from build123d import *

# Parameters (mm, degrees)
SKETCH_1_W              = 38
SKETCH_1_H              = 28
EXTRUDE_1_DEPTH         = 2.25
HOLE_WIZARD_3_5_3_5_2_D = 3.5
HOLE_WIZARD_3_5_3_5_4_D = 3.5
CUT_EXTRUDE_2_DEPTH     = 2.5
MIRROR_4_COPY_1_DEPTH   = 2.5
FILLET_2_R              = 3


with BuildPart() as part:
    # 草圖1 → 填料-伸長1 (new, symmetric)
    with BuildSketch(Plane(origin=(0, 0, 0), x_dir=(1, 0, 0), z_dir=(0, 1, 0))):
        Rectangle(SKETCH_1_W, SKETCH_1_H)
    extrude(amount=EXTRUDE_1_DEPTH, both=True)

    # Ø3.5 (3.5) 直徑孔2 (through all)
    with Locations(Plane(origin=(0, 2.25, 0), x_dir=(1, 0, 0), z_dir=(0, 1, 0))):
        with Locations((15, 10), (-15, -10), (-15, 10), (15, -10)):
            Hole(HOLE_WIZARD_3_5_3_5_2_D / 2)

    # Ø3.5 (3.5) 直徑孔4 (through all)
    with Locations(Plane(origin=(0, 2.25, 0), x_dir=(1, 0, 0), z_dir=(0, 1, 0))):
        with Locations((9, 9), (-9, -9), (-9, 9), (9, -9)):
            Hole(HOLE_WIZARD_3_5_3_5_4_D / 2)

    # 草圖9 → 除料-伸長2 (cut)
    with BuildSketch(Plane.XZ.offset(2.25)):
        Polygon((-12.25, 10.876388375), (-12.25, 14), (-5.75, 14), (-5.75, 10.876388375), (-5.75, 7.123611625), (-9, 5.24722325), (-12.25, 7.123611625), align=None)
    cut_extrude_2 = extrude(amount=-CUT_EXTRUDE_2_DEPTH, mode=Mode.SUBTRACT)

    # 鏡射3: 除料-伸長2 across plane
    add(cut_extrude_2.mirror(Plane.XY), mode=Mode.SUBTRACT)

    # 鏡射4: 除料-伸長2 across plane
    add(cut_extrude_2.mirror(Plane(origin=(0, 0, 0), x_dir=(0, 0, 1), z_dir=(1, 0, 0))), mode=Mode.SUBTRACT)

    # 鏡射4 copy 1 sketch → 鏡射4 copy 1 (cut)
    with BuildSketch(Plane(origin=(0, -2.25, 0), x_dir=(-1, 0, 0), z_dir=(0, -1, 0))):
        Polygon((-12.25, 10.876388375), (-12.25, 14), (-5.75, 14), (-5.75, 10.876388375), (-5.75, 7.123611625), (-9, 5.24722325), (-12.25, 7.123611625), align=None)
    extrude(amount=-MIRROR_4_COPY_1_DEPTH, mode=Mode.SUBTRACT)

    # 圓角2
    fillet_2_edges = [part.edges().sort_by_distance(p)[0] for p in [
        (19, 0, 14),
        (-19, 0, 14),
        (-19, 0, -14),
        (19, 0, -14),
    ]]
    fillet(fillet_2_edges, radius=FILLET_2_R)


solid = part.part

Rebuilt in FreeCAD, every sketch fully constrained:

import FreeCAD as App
import Part
import Sketcher

V = App.Vector
Q = App.Units.Quantity


def edges_at(feature, points):
    """Names of the edges that pass closest to the given points."""
    edges = feature.Shape.Edges
    near = lambda p: min(range(len(edges)), key=lambda i: edges[i].distToShape(Part.Vertex(*p))[0])
    return sorted({f"Edge{near(p) + 1}" for p in points})


def add_polygon(sketch, points):
    """Adds a closed chain of lines whose ends are joined by coincident constraints."""
    first, n = sketch.GeometryCount, len(points)
    for a, b in zip(points, points[1:] + points[:1]):
        sketch.addGeometry(Part.LineSegment(App.Vector(*a, 0), App.Vector(*b, 0)), False)
    for i in range(n):
        sketch.addConstraint(Sketcher.Constraint("Coincident", first + i, 2, first + (i + 1) % n, 1))

doc = App.newDocument("Part")
body = doc.addObject("PartDesign::Body", "Body")

# Sketch on XZ plane
sketch1 = doc.addObject("Sketcher::SketchObject", "Sketch")
body.addObject(sketch1)
sketch1.AttachmentSupport = (doc.XZ_Plane, [""])
sketch1.MapMode = "FlatFace"
add_polygon(sketch1, [(-19, -14), (-19, 14), (19, 14), (19, -14)])  # lines 0-3
sketch1.addConstraint(Sketcher.Constraint("Vertical", 0))
sketch1.addConstraint(Sketcher.Constraint("Horizontal", 1))
sketch1.addConstraint(Sketcher.Constraint("Vertical", 2))
sketch1.addConstraint(Sketcher.Constraint("Horizontal", 3))
sketch1.addConstraint(Sketcher.Constraint("Symmetric", 0, 2, 2, 2, -1, 1))
sketch1.addConstraint(Sketcher.Constraint("DistanceX", 1, 1, 1, 2, Q("38 mm")))
sketch1.addConstraint(Sketcher.Constraint("DistanceY", 0, 1, 0, 2, Q("28 mm")))
pad1 = doc.addObject("PartDesign::Pad", "Pad")
body.addObject(pad1)
pad1.Profile = sketch1
pad1.Length = 4.5
pad1.Midplane = True

# Sketch on XZ plane
sketch2 = doc.addObject("Sketcher::SketchObject", "Sketch001")
body.addObject(sketch2)
sketch2.AttachmentSupport = (doc.XZ_Plane, [""])
sketch2.MapMode = "FlatFace"
sketch2.AttachmentOffset = App.Placement(V(0, 0, -2.25), App.Rotation())
sketch2.addGeometry(Part.Circle(V(15, -10, 0), V(0, 0, 1), 1.8), False)
sketch2.addGeometry(Part.Circle(V(-15, 10, 0), V(0, 0, 1), 1.8), False)
sketch2.addGeometry(Part.Circle(V(-15, -10, 0), V(0, 0, 1), 1.8), False)
sketch2.addGeometry(Part.Circle(V(15, 10, 0), V(0, 0, 1), 1.8), False)
sketch2.addConstraint(Sketcher.Constraint("Equal", 0, 1))
sketch2.addConstraint(Sketcher.Constraint("Equal", 1, 2))
sketch2.addConstraint(Sketcher.Constraint("Equal", 2, 3))
sketch2.addConstraint(Sketcher.Constraint("Symmetric", 0, 3, 1, 3, -1, 1))
sketch2.addConstraint(Sketcher.Constraint("Symmetric", 2, 3, 3, 3, -1, 1))
sketch2.addConstraint(Sketcher.Constraint("Symmetric", 0, 3, 2, 3, -2))
sketch2.addConstraint(Sketcher.Constraint("Diameter", 0, Q("3.5 mm")))
sketch2.addConstraint(Sketcher.Constraint("DistanceX", -1, 1, 0, 3, Q("15 mm")))
sketch2.addConstraint(Sketcher.Constraint("DistanceY", 0, 3, -1, 1, Q("10 mm")))
doc.recompute()
hole = doc.addObject("PartDesign::Hole", "Hole")
body.addObject(hole)
hole.Profile = sketch2
hole.ThreadType = "None"
hole.Diameter = 3.5
hole.DepthType = "ThroughAll"
hole.Reversed = True

# Sketch on XZ plane
sketch3 = doc.addObject("Sketcher::SketchObject", "Sketch002")
body.addObject(sketch3)
sketch3.AttachmentSupport = (doc.XZ_Plane, [""])
sketch3.MapMode = "FlatFace"
sketch3.AttachmentOffset = App.Placement(V(0, 0, -2.25), App.Rotation())
sketch3.addGeometry(Part.Circle(V(9, -9, 0), V(0, 0, 1), 1.8), False)
sketch3.addGeometry(Part.Circle(V(-9, 9, 0), V(0, 0, 1), 1.8), False)
sketch3.addGeometry(Part.Circle(V(-9, -9, 0), V(0, 0, 1), 1.8), False)
sketch3.addGeometry(Part.Circle(V(9, 9, 0), V(0, 0, 1), 1.8), False)
sketch3.addConstraint(Sketcher.Constraint("Equal", 0, 1))
sketch3.addConstraint(Sketcher.Constraint("Equal", 1, 2))
sketch3.addConstraint(Sketcher.Constraint("Equal", 2, 3))
sketch3.addConstraint(Sketcher.Constraint("Symmetric", 0, 3, 1, 3, -1, 1))
sketch3.addConstraint(Sketcher.Constraint("Symmetric", 2, 3, 3, 3, -1, 1))
sketch3.addConstraint(Sketcher.Constraint("Symmetric", 0, 3, 2, 3, -2))
sketch3.addConstraint(Sketcher.Constraint("Diameter", 0, Q("3.5 mm")))
sketch3.addConstraint(Sketcher.Constraint("DistanceX", -1, 1, 0, 3, Q("9 mm")))
sketch3.addConstraint(Sketcher.Constraint("DistanceY", 0, 3, -1, 1, Q("9 mm")))
doc.recompute()
hole2 = doc.addObject("PartDesign::Hole", "Hole001")
body.addObject(hole2)
hole2.Profile = sketch3
hole2.ThreadType = "None"
hole2.Diameter = 3.5
hole2.DepthType = "ThroughAll"
hole2.Reversed = True

# Sketch on XZ plane
sketch4 = doc.addObject("Sketcher::SketchObject", "Sketch003")
body.addObject(sketch4)
sketch4.AttachmentSupport = (doc.XZ_Plane, [""])
sketch4.MapMode = "FlatFace"
sketch4.AttachmentOffset = App.Placement(V(0, 0, 2.25), App.Rotation())
add_polygon(sketch4, [(-12.2, 14), (-12.2, 7.1), (-9, 5.2), (-5.8, 7.1), (-5.8, 14)])  # lines 0-4
sketch4.addConstraint(Sketcher.Constraint("Vertical", 0))
sketch4.addConstraint(Sketcher.Constraint("Vertical", 3))
sketch4.addConstraint(Sketcher.Constraint("Horizontal", 4))
sketch4.addConstraint(Sketcher.Constraint("Horizontal", 0, 2, 2, 2))
sketch4.addConstraint(Sketcher.Constraint("Equal", 1, 2))
sketch4.addConstraint(Sketcher.Constraint("Angle", 1, Q("-30 deg")))
sketch4.addConstraint(Sketcher.Constraint("DistanceX", 4, 2, 4, 1, Q("6.5 mm")))
sketch4.addConstraint(Sketcher.Constraint("DistanceX", 1, 2, -1, 1, Q("9 mm")))
sketch4.addConstraint(Sketcher.Constraint("DistanceY", -1, 1, 3, 2, Q("14 mm")))
sketch4.addConstraint(Sketcher.Constraint("DistanceY", 0, 2, 0, 1, Q("6.876388 mm")))
pocket1 = doc.addObject("PartDesign::Pocket", "Pocket")
body.addObject(pocket1)
pocket1.Profile = sketch4
pocket1.Length = 2.5
doc.recompute()

mirrored = doc.addObject("PartDesign::Mirrored", "Mirrored")
body.addObject(mirrored)
mirrored.Originals = [pocket1]
mirrored.MirrorPlane = (doc.XY_Plane, [""])
body.Tip = mirrored
doc.recompute()

mirrored2 = doc.addObject("PartDesign::Mirrored", "Mirrored001")
body.addObject(mirrored2)
mirrored2.Originals = [pocket1]
mirrored2.MirrorPlane = (doc.YZ_Plane, [""])
body.Tip = mirrored2

# Sketch on XZ plane
sketch5 = doc.addObject("Sketcher::SketchObject", "Sketch004")
body.addObject(sketch5)
sketch5.AttachmentSupport = (doc.XZ_Plane, [""])
sketch5.MapMode = "FlatFace"
sketch5.AttachmentOffset = App.Placement(V(0, 0, 2.25), App.Rotation())
add_polygon(sketch5, [(12.2, -14), (12.2, -7.1), (9, -5.2), (5.8, -7.1), (5.8, -14)])  # lines 0-4
sketch5.addConstraint(Sketcher.Constraint("Vertical", 0))
sketch5.addConstraint(Sketcher.Constraint("Vertical", 3))
sketch5.addConstraint(Sketcher.Constraint("Horizontal", 4))
sketch5.addConstraint(Sketcher.Constraint("Horizontal", 0, 2, 2, 2))
sketch5.addConstraint(Sketcher.Constraint("Equal", 1, 2))
sketch5.addConstraint(Sketcher.Constraint("Angle", 1, Q("150 deg")))
sketch5.addConstraint(Sketcher.Constraint("DistanceX", 4, 1, 4, 2, Q("6.5 mm")))
sketch5.addConstraint(Sketcher.Constraint("DistanceX", -1, 1, 1, 2, Q("9 mm")))
sketch5.addConstraint(Sketcher.Constraint("DistanceY", 3, 2, -1, 1, Q("14 mm")))
sketch5.addConstraint(Sketcher.Constraint("DistanceY", 0, 1, 0, 2, Q("6.876388 mm")))
pocket2 = doc.addObject("PartDesign::Pocket", "Pocket001")
body.addObject(pocket2)
pocket2.Profile = sketch5
pocket2.Length = 2.5
doc.recompute()

fillet = doc.addObject("PartDesign::Fillet", "Fillet")
body.addObject(fillet)
fillet.Base = (pocket2, edges_at(pocket2, [
    (19, 0, 14),
    (-19, 0, 14),
    (-19, 0, -14),
    (19, 0, -14),
]))
fillet.Radius = 3

doc.recompute()
